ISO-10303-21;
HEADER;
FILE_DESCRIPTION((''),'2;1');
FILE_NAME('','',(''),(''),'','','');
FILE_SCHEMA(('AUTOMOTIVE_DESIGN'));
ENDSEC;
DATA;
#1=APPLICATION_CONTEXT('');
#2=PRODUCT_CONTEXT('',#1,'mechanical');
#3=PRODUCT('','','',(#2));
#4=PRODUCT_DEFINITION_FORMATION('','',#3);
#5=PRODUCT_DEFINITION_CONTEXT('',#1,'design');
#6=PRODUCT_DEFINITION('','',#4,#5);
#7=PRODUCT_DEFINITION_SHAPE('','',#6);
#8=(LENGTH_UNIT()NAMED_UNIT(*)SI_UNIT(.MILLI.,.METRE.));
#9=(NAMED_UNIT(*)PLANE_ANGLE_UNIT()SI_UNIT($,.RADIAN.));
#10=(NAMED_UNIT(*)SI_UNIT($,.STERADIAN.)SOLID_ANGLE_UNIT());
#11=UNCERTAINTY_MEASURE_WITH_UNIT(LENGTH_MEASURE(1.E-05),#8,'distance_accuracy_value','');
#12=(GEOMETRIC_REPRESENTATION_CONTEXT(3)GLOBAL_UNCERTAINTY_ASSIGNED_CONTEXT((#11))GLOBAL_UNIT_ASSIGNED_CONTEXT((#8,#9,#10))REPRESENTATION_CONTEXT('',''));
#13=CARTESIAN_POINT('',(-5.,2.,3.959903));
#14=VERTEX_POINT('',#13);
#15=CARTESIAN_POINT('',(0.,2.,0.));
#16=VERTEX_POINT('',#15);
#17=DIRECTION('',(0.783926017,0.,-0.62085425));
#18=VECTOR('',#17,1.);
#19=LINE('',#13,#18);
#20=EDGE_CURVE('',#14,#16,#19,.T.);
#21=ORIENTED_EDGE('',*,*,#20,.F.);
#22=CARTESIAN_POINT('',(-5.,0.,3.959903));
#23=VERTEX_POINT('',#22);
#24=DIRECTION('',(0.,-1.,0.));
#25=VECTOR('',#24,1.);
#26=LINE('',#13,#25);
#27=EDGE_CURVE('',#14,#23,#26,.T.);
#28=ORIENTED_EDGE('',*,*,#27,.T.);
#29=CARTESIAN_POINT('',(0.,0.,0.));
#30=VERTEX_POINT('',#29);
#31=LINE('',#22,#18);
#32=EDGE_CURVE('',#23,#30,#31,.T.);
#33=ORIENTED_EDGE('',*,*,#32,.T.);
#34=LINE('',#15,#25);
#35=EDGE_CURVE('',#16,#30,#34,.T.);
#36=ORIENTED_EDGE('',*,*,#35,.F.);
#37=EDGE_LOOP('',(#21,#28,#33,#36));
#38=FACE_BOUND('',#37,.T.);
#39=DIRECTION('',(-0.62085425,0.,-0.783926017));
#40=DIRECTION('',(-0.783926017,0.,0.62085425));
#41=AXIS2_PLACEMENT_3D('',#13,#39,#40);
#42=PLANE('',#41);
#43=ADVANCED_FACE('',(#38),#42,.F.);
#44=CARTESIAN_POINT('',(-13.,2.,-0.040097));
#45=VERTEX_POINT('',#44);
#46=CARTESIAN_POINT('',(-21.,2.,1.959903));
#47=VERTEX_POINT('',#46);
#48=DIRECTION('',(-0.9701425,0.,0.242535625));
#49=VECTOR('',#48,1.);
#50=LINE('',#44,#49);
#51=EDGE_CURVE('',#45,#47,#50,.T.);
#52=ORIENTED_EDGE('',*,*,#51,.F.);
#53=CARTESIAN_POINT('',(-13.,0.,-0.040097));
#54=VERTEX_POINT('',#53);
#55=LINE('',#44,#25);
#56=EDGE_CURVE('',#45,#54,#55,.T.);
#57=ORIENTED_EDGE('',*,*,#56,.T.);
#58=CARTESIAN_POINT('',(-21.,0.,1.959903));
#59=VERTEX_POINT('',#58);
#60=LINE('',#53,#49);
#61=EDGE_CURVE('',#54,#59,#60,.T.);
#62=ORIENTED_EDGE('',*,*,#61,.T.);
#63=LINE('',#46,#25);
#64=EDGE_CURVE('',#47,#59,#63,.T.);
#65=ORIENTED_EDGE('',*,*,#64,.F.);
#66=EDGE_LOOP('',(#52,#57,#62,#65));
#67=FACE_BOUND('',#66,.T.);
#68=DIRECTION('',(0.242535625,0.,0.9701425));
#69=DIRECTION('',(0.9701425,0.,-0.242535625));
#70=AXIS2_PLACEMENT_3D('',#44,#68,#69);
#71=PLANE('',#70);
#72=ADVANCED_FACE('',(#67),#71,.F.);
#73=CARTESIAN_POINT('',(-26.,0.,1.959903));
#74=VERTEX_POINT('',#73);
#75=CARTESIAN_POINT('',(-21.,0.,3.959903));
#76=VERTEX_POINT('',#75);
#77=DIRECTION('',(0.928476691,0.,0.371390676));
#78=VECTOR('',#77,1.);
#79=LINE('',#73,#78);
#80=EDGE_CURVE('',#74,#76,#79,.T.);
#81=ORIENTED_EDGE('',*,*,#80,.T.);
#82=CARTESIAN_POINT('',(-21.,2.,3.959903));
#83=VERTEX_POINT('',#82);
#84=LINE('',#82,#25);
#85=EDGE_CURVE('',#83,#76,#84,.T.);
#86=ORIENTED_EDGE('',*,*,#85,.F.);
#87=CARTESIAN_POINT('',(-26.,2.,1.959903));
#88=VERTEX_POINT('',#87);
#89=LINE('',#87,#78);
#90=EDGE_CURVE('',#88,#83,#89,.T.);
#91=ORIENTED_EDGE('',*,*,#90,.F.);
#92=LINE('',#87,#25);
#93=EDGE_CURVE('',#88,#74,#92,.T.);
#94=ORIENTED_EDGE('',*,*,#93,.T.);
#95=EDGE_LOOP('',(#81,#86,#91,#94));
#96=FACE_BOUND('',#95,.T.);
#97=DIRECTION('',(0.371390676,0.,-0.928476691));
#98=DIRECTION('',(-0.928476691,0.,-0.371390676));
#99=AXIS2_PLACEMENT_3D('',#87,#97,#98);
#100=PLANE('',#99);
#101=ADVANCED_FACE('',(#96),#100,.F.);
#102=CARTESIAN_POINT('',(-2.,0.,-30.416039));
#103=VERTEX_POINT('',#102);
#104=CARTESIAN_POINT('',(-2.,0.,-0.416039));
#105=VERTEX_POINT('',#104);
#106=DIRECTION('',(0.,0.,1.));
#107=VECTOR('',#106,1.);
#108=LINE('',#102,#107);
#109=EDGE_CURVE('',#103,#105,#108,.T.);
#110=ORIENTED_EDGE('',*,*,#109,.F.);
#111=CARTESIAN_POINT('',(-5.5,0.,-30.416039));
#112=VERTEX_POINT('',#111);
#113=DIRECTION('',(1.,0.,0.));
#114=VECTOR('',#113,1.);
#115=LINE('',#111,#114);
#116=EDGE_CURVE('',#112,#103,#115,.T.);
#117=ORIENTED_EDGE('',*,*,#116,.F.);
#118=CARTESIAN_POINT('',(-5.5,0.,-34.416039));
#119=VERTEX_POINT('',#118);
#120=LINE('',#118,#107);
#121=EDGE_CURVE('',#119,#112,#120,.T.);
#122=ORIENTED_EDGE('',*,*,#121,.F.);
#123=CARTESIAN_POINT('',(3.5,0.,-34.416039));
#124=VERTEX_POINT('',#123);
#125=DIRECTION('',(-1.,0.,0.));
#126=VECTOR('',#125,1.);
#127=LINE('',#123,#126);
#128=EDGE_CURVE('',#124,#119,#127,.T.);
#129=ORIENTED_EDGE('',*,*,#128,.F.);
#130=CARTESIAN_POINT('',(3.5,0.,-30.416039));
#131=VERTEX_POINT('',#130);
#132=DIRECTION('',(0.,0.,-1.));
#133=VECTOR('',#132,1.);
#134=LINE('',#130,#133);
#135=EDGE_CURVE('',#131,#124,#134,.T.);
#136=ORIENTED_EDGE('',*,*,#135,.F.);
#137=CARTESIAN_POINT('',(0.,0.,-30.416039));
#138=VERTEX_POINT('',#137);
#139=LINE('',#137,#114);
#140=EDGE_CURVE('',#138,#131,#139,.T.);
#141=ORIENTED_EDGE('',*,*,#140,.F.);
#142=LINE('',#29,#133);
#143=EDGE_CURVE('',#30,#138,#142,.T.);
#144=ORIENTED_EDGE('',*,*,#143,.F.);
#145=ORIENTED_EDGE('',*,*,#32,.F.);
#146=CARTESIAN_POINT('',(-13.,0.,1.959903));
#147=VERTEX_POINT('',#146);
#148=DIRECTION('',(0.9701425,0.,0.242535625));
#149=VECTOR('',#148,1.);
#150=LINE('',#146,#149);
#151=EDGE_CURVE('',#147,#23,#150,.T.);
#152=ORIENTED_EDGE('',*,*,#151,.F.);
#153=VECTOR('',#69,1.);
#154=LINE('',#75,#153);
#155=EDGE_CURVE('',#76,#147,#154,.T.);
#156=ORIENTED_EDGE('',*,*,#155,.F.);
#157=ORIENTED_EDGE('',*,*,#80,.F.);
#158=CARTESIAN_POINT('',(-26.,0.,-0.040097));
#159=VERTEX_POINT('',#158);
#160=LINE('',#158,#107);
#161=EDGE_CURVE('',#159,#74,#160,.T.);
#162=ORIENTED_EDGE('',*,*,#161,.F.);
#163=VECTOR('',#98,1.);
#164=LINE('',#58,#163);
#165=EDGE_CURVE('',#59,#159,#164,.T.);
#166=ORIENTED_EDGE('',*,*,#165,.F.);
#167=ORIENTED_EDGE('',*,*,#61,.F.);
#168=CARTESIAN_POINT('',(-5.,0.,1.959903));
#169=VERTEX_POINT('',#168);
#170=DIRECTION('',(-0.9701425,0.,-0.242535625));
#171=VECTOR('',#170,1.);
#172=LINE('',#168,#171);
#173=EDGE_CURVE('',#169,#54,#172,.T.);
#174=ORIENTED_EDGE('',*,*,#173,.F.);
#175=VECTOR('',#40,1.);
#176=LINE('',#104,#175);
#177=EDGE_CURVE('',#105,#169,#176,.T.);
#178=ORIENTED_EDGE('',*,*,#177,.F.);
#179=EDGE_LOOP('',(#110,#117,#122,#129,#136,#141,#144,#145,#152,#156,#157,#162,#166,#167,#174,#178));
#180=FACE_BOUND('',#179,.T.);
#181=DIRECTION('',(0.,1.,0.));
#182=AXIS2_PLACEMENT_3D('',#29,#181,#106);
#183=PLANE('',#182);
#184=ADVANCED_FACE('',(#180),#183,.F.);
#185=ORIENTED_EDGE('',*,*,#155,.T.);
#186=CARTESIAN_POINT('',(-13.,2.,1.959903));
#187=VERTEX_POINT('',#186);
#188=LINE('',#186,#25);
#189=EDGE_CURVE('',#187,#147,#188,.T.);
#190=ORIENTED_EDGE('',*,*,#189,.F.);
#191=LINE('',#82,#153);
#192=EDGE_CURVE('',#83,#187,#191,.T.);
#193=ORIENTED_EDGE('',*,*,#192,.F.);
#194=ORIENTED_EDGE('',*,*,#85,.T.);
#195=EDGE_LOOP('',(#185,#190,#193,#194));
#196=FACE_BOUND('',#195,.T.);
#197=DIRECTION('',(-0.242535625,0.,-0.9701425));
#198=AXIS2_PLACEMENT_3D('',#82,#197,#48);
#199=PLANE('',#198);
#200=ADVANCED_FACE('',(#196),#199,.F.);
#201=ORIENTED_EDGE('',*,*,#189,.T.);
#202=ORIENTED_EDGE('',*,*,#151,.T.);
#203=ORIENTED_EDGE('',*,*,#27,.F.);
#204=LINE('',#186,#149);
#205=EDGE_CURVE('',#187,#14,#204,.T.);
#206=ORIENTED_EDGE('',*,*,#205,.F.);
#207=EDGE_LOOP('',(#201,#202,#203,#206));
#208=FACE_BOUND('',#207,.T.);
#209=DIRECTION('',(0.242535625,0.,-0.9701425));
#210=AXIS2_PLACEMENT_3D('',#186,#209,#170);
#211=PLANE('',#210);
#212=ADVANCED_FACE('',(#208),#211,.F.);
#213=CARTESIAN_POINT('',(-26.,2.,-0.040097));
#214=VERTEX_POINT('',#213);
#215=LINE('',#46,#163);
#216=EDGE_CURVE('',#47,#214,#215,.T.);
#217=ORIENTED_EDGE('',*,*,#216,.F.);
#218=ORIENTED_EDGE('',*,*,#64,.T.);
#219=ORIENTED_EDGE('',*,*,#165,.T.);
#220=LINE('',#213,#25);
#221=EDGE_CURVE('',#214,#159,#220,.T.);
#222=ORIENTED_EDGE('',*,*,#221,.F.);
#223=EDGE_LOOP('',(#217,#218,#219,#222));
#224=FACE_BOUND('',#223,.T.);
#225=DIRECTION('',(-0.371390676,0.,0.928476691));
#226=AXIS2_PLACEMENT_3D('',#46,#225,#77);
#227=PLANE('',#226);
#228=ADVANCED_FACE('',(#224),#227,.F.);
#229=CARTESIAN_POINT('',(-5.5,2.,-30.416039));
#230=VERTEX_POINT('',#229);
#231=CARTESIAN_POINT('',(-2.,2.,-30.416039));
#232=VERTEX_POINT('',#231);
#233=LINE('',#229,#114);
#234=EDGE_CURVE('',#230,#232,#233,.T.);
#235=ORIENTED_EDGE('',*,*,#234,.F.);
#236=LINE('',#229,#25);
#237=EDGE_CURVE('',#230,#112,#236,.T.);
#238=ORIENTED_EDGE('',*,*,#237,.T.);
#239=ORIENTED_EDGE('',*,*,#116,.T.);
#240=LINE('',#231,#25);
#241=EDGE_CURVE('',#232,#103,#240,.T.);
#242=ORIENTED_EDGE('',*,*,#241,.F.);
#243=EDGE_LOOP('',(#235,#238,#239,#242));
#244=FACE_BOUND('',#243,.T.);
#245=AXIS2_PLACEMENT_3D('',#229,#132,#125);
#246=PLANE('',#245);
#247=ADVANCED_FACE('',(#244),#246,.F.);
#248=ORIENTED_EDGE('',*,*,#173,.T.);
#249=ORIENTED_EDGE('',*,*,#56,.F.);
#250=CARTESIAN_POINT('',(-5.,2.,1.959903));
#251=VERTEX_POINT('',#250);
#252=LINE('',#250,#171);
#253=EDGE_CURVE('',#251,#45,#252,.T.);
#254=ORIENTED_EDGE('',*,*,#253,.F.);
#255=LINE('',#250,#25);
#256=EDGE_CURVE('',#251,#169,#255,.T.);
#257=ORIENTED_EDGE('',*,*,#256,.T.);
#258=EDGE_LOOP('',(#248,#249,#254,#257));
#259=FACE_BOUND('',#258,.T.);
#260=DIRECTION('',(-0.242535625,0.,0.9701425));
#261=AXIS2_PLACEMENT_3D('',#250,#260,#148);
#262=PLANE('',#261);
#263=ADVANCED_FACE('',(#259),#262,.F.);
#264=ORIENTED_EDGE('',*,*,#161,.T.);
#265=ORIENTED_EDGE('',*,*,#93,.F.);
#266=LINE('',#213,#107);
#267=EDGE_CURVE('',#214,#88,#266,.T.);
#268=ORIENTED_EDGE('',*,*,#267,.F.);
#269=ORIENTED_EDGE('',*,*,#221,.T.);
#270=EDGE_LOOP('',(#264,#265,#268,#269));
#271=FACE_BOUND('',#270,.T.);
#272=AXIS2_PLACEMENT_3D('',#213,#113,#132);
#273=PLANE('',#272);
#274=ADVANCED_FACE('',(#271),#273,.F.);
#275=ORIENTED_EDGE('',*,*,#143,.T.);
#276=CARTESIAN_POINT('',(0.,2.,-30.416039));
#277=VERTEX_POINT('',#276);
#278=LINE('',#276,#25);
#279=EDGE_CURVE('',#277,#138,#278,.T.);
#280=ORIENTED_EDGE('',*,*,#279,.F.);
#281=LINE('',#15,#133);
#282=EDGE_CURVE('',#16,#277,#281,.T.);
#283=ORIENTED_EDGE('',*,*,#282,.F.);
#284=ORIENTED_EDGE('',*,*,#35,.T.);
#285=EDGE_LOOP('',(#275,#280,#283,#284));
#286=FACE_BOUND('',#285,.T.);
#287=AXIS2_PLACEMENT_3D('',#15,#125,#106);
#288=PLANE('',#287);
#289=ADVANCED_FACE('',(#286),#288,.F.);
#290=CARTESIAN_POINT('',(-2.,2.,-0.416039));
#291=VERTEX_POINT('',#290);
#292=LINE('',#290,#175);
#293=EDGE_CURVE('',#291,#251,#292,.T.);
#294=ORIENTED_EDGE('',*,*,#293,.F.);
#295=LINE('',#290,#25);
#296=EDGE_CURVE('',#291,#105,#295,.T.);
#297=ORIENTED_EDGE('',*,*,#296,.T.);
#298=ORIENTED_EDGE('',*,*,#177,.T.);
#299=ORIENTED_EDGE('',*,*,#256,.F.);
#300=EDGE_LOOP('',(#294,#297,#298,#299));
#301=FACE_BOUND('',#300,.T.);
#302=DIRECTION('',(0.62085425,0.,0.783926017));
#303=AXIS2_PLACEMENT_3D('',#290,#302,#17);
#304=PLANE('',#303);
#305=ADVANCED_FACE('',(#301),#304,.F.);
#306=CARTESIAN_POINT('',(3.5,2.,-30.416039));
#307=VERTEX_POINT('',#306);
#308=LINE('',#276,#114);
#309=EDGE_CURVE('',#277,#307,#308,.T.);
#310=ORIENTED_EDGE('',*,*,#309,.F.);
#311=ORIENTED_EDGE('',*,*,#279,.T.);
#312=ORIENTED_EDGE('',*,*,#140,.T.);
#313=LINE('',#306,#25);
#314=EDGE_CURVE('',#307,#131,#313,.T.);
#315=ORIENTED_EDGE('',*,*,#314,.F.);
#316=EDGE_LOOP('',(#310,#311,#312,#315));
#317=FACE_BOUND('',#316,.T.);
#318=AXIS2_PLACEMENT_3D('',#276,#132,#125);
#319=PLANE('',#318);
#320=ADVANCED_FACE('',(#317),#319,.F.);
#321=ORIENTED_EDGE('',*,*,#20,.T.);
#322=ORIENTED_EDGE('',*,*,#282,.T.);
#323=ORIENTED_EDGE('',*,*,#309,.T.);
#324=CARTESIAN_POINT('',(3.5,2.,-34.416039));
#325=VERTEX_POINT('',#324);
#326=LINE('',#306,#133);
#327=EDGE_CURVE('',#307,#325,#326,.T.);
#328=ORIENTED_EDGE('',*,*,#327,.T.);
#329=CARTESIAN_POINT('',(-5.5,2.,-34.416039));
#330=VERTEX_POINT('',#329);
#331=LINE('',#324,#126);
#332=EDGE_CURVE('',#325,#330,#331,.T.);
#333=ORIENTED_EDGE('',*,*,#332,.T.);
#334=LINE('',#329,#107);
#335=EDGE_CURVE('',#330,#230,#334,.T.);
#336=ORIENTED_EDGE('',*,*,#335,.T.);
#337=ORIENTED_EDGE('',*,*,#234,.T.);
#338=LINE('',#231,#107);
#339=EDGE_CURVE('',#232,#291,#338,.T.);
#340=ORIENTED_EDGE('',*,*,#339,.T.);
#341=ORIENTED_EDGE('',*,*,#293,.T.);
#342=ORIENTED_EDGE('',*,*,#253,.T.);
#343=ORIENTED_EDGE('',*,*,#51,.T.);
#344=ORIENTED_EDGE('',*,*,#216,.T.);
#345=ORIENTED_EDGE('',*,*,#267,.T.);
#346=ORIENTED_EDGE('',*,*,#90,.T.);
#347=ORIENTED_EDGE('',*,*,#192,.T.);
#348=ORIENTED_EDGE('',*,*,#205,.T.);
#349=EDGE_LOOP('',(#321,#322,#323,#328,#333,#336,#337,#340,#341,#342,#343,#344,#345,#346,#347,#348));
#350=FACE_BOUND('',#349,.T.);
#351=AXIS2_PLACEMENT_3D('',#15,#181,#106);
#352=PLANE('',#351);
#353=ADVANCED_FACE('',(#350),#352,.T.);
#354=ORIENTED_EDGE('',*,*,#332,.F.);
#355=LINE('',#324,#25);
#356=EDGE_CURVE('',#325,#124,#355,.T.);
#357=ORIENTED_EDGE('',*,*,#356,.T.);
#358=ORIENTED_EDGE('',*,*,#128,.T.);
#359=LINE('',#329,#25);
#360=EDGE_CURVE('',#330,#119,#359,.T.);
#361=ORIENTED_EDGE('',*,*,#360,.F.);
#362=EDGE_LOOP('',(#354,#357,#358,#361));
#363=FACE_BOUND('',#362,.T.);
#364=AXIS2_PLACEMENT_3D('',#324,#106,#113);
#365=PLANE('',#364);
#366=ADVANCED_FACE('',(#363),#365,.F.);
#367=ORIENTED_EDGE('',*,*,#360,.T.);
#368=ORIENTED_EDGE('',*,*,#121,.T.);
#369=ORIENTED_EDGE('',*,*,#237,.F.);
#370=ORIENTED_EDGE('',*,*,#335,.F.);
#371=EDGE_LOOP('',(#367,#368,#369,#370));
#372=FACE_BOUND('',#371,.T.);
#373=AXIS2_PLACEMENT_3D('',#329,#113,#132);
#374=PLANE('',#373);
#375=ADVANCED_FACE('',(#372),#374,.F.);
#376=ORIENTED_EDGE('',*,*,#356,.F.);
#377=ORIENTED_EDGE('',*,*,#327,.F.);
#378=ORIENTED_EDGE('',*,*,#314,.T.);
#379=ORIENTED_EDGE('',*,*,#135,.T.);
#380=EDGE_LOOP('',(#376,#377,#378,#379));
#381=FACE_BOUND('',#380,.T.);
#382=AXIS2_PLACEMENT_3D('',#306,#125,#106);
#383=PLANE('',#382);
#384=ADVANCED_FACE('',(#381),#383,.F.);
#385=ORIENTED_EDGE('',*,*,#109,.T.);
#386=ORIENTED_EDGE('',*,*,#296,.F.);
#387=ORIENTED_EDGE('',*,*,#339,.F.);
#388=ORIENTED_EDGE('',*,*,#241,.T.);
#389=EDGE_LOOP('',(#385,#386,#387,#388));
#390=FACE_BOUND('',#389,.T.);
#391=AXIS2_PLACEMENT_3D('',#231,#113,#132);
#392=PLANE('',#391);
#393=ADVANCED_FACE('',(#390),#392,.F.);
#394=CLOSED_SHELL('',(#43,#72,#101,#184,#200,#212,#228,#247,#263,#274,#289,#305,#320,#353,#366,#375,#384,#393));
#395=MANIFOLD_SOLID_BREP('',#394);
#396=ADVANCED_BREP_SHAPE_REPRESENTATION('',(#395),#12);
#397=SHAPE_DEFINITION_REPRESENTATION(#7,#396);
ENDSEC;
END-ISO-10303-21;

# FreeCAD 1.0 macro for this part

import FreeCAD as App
import Part
import Sketcher
Q = App.Units.Quantity


def add_polygon(sketch, points):
    """Adds a closed chain of lines whose ends are joined by coincident constraints."""
    first, n = sketch.GeometryCount, len(points)
    for a, b in zip(points, points[1:] + points[:1]):
        sketch.addGeometry(Part.LineSegment(App.Vector(*a, 0), App.Vector(*b, 0)), False)
    for i in range(n):
        sketch.addConstraint(Sketcher.Constraint("Coincident", first + i, 2, first + (i + 1) % n, 1))

doc = App.newDocument("Part")
body = doc.addObject("PartDesign::Body", "Body")

# Sketch on XZ plane
sketch1 = doc.addObject("Sketcher::SketchObject", "Sketch")
body.addObject(sketch1)
sketch1.AttachmentSupport = (doc.XZ_Plane, [""])
sketch1.MapMode = "FlatFace"
add_polygon(sketch1, [(0, 0), (0, -30.4), (3.5, -30.4), (3.5, -34.4), (-5.5, -34.4), (-5.5, -30.4), (-2, -30.4), (-2, -0.4), (-5, 2), (-13, 0), (-21, 2), (-26, 0), (-26, 2), (-21, 4), (-13, 2), (-5, 4)])  # lines 0-15
sketch1.addConstraint([
    Sketcher.Constraint("Vertical", 0),
    Sketcher.Constraint("Horizontal", 1),
    Sketcher.Constraint("Vertical", 2),
    Sketcher.Constraint("Horizontal", 3),
    Sketcher.Constraint("Vertical", 4),
    Sketcher.Constraint("Horizontal", 5),
    Sketcher.Constraint("Vertical", 6),
    Sketcher.Constraint("Vertical", 11),
    Sketcher.Constraint("Coincident", 15, 2, -1, 1),
    Sketcher.Constraint("Parallel", 10, 12),
    Sketcher.Constraint("Parallel", 9, 13),
    Sketcher.Constraint("Parallel", 8, 14),
    Sketcher.Constraint("Parallel", 7, 15),
    Sketcher.Constraint("Horizontal", 1, 2, 4, 2),
    Sketcher.Constraint("Horizontal", 7, 2, 9, 2),
    Sketcher.Constraint("Horizontal", 8, 2, 10, 2),
    Sketcher.Constraint("Horizontal", 9, 2, 11, 2),
    Sketcher.Constraint("Horizontal", 11, 2, 13, 2),
    Sketcher.Constraint("Horizontal", 12, 2, 14, 2),
    Sketcher.Constraint("Vertical", 9, 2, 12, 2),
    Sketcher.Constraint("Equal", 1, 5),
    Sketcher.Constraint("Equal", 8, 9),
    Sketcher.Constraint("DistanceX", 3, 2, 3, 1, Q("9 mm")),
    Sketcher.Constraint("DistanceY", 2, 2, 2, 1, Q("4 mm")),
    Sketcher.Constraint("DistanceY", 6, 1, 6, 2, Q("30 mm")),
    Sketcher.Constraint("DistanceY", 11, 1, 11, 2, Q("2 mm")),
    Sketcher.Constraint("DistanceX", 1, 1, 1, 2, Q("3.5 mm")),
    Sketcher.Constraint("DistanceX", 7, 2, -1, 1, Q("5 mm")),
    Sketcher.Constraint("DistanceX", 8, 2, -1, 1, Q("13 mm")),
    Sketcher.Constraint("DistanceX", 10, 2, -1, 1, Q("26 mm")),
    Sketcher.Constraint("DistanceY", 0, 2, 0, 1, Q("30.416039 mm")),
])
pad1 = doc.addObject("PartDesign::Pad", "Pad")
body.addObject(pad1)
pad1.Profile = sketch1
pad1.Length = 2
pad1.Reversed = True

doc.recompute()
